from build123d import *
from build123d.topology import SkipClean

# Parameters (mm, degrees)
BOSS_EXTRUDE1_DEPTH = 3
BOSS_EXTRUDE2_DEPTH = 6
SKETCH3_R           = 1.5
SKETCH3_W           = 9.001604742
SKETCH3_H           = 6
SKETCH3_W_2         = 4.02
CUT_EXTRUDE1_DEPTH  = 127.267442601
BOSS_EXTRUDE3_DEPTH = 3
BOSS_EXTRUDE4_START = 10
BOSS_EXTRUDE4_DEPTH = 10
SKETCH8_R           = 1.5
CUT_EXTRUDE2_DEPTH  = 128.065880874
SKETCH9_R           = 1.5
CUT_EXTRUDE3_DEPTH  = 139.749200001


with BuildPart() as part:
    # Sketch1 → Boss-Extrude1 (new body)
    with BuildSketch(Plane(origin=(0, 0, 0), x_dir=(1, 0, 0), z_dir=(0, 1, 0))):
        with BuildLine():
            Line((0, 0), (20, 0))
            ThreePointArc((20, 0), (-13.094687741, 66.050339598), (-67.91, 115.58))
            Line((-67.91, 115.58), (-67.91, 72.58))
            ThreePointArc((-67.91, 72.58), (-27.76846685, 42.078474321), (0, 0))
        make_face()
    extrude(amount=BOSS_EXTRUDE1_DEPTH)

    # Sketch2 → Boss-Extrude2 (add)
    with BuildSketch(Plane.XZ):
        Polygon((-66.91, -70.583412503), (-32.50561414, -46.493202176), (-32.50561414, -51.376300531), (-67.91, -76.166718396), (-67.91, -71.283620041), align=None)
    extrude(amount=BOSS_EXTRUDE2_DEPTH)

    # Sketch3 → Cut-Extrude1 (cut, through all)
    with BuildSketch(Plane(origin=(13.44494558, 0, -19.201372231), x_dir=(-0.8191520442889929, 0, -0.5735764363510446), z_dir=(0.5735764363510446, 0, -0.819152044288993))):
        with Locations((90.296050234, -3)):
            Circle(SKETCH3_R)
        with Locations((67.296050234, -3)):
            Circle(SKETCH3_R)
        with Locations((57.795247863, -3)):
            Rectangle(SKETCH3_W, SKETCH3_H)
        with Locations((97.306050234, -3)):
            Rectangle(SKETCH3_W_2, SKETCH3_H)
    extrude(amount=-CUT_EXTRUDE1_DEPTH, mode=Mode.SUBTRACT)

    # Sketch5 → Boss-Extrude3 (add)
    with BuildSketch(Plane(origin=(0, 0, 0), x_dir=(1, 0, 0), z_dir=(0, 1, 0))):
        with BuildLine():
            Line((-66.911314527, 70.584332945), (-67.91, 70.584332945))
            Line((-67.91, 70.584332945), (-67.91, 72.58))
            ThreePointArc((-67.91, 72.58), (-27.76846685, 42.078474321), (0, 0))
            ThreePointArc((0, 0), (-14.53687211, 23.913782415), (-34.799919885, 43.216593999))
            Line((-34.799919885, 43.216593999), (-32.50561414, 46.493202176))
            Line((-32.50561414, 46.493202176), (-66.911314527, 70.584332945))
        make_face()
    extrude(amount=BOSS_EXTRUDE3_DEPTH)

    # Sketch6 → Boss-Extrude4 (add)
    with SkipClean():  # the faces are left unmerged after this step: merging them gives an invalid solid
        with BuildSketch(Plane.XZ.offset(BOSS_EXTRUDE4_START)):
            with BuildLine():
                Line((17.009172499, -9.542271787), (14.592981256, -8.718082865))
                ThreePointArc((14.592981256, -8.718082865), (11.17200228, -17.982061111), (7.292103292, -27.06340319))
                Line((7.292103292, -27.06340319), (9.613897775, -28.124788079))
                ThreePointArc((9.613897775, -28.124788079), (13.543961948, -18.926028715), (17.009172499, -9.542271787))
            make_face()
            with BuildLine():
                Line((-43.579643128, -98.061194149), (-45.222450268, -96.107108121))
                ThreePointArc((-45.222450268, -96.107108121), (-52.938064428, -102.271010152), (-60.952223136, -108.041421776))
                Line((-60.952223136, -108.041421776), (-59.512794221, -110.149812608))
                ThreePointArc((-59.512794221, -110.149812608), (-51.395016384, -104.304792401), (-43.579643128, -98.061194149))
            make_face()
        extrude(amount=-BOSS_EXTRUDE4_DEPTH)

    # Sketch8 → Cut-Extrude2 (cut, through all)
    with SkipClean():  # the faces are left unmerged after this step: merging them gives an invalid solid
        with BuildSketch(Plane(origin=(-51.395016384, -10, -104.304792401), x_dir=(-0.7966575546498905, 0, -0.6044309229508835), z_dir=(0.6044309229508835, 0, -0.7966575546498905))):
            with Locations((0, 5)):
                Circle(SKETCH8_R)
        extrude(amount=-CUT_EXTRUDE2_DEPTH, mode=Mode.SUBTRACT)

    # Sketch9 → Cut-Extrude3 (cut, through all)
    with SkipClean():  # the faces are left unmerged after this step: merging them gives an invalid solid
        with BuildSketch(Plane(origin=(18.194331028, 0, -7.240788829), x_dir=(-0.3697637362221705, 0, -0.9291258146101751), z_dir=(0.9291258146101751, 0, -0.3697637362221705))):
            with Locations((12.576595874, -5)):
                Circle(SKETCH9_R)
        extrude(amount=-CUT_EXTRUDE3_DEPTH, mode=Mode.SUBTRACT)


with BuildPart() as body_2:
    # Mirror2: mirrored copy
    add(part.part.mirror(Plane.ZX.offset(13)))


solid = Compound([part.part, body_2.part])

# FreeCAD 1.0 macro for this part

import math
import FreeCAD as App
import Part
import Sketcher

V = App.Vector
Q = App.Units.Quantity

doc = App.newDocument("Part")
params = doc.addObject("Spreadsheet::Sheet", "Params")
for row, (alias, value) in enumerate([
    ("sketch1_radius", "200 mm"),
    ("sketch1_radius2", "150 mm"),
    ("sketch1_width", "20 mm"),
    ("sketch1_height", "43 mm"),
    ("pad1_length", "3 mm"),
    ("sketch2_length", "42 mm"),
    ("pad2_length", "6 mm"),
    ("sketch3_diameter", "3 mm"),
    ("sketch3_height", "6 mm"),
    ("sketch3_width", "4.02 mm"),
    ("sketch4_radius", "150 mm"),
    ("sketch4_length", "4 mm"),
    ("pad3_length", "3 mm"),
    ("sketch5_radius", "200 mm"),
    ("pad4_length", "10 mm"),
    ("sketch6_diameter", "3 mm"),
    ("sketch7_diameter", "3 mm"),
], start=1):
    params.set(f"A{row}", alias)
    params.set(f"B{row}", "=" + value)
    params.setAlias(f"B{row}", alias)

body = doc.addObject("PartDesign::Body", "Body")

sketch1 = body.newObject("Sketcher::SketchObject", "Sketch")
sketch1.AttachmentSupport = (doc.getObject("XZ_Plane"), [""])
sketch1.MapMode = "FlatFace"
sketch1.addGeometry([
    Part.LineSegment(V(0, 0, 0), V(20, 0, 0)),
    Part.ArcOfCircle(Part.Circle(V(-172, 55, 0), V(0, 0, 1), 200), math.radians(-59), math.radians(-16)),
    Part.LineSegment(V(-68, -116, 0), V(-68, -73, 0)),
    Part.ArcOfCircle(Part.Circle(V(-137, 60, 0), V(0, 0, 1), 150), math.radians(-62), math.radians(-24)),
], False)
sketch1.addConstraint([
    Sketcher.Constraint("Coincident", 0, 2, 1, 2),
    Sketcher.Constraint("Coincident", 1, 1, 2, 1),
    Sketcher.Constraint("Coincident", 2, 2, 3, 1),
    Sketcher.Constraint("Coincident", 3, 2, 0, 1),
    Sketcher.Constraint("Horizontal", 0),
    Sketcher.Constraint("Vertical", 2),
    Sketcher.Constraint("Coincident", 3, 2, -1, 1),
    Sketcher.Constraint("Radius", 1, 200.0),
    Sketcher.Constraint("Radius", 3, 150.0),
    Sketcher.Constraint("DistanceX", 0, 1, 0, 2, 20.0),
    Sketcher.Constraint("DistanceY", 2, 1, 2, 2, 43.0),
    Sketcher.Constraint("DistanceX", 1, 1, -1, 1, 67.91),
    Sketcher.Constraint("DistanceY", 1, 1, -1, 1, 115.58),
])
sketch1.setExpression("Constraints[7]", "Params.sketch1_radius")
sketch1.setExpression("Constraints[8]", "Params.sketch1_radius2")
sketch1.setExpression("Constraints[9]", "Params.sketch1_width")
sketch1.setExpression("Constraints[10]", "Params.sketch1_height")
pad1 = body.newObject("PartDesign::Pad", "Pad")
pad1.Profile = sketch1
pad1.setExpression("Length", "Params.pad1_length")
pad1.Reversed = True

sketch2 = body.newObject("Sketcher::SketchObject", "Sketch001")
sketch2.AttachmentSupport = (doc.getObject("XZ_Plane"), [""])
sketch2.MapMode = "FlatFace"
sketch2.addGeometry([
    Part.LineSegment(V(-32.5, -46.5, 0), V(-66.9, -70.6, 0)),
    Part.LineSegment(V(-66.9, -70.6, 0), V(-67.9, -71.3, 0)),
    Part.LineSegment(V(-67.9, -71.3, 0), V(-67.9, -76.2, 0)),
    Part.LineSegment(V(-67.9, -76.2, 0), V(-32.5, -51.4, 0)),
    Part.LineSegment(V(-32.5, -51.4, 0), V(-32.5, -46.5, 0)),
], False)
sketch2.addConstraint([
    Sketcher.Constraint("Coincident", 0, 2, 1, 1),
    Sketcher.Constraint("Coincident", 1, 2, 2, 1),
    Sketcher.Constraint("Coincident", 2, 2, 3, 1),
    Sketcher.Constraint("Coincident", 3, 2, 4, 1),
    Sketcher.Constraint("Coincident", 4, 2, 0, 1),
    Sketcher.Constraint("Vertical", 2),
    Sketcher.Constraint("Vertical", 4),
    Sketcher.Constraint("Parallel", 0, 1),
    Sketcher.Constraint("Parallel", 1, 3),
    Sketcher.Constraint("Angle", 0, Q("-145 deg")),
    Sketcher.Constraint("Distance", 0, 42.0),
    Sketcher.Constraint("DistanceX", 1, 2, 0, 2, 1.0),
    Sketcher.Constraint("DistanceX", 0, 2, -1, 1, 66.91),
    Sketcher.Constraint("DistanceY", 2, 2, 2, 1, 4.883098),
    Sketcher.Constraint("DistanceY", 3, 2, -1, 1, 51.376301),
])
sketch2.setExpression("Constraints[10]", "Params.sketch2_length")
pad2 = body.newObject("PartDesign::Pad", "Pad001")
pad2.Profile = sketch2
pad2.setExpression("Length", "Params.pad2_length")

sketch3 = body.newObject("Sketcher::SketchObject", "Sketch002")
sketch3.Placement = App.Placement(V(13.444946, 0, -19.201372), App.Rotation(V(-0.819152044, 0, -0.573576436), V(0, 0.999999999, 0), V(0.573576436, 0, -0.819152044), "ZXY"))
sketch3.addGeometry([
    Part.Circle(V(90.3, -3, 0), V(0, 0, 1), 1.5),
    Part.Circle(V(67.3, -3, 0), V(0, 0, 1), 1.5),
    Part.LineSegment(V(53.3, 0, 0), V(53.3, -6, 0)),
    Part.LineSegment(V(53.3, -6, 0), V(62.3, -6, 0)),
    Part.LineSegment(V(62.3, -6, 0), V(62.3, 0, 0)),
    Part.LineSegment(V(62.3, 0, 0), V(53.3, 0, 0)),
    Part.LineSegment(V(95.3, 0, 0), V(95.3, -6, 0)),
    Part.LineSegment(V(95.3, -6, 0), V(99.3, -6, 0)),
    Part.LineSegment(V(99.3, -6, 0), V(99.3, 0, 0)),
    Part.LineSegment(V(99.3, 0, 0), V(95.3, 0, 0)),
], False)
sketch3.addConstraint([
    Sketcher.Constraint("Coincident", 2, 2, 3, 1),
    Sketcher.Constraint("Coincident", 3, 2, 4, 1),
    Sketcher.Constraint("Coincident", 4, 2, 5, 1),
    Sketcher.Constraint("Coincident", 5, 2, 2, 1),
    Sketcher.Constraint("Coincident", 6, 2, 7, 1),
    Sketcher.Constraint("Coincident", 7, 2, 8, 1),
    Sketcher.Constraint("Coincident", 8, 2, 9, 1),
    Sketcher.Constraint("Coincident", 9, 2, 6, 1),
    Sketcher.Constraint("Vertical", 2),
    Sketcher.Constraint("Horizontal", 3),
    Sketcher.Constraint("Vertical", 4),
    Sketcher.Constraint("Horizontal", 5),
    Sketcher.Constraint("Vertical", 6),
    Sketcher.Constraint("Horizontal", 7),
    Sketcher.Constraint("Vertical", 8),
    Sketcher.Constraint("Horizontal", 9),
    Sketcher.Constraint("Equal", 0, 1),
    Sketcher.Constraint("PointOnObject", 4, 2, -1),
    Sketcher.Constraint("PointOnObject", 8, 2, -1),
    Sketcher.Constraint("Horizontal", 0, 3, 1, 3),
    Sketcher.Constraint("Horizontal", 3, 2, 6, 2),
    Sketcher.Constraint("Diameter", 0, 3.0),
    Sketcher.Constraint("DistanceY", 2, 2, 2, 1, 6.0),
    Sketcher.Constraint("DistanceY", 0, 3, -1, 1, 3.0),
    Sketcher.Constraint("DistanceX", 1, 3, 0, 3, 23.0),
    Sketcher.Constraint("DistanceX", 3, 2, 1, 3, 5.0),
    Sketcher.Constraint("DistanceX", 0, 3, 6, 2, 5.0),
    Sketcher.Constraint("DistanceX", 7, 1, 7, 2, 4.02),
    Sketcher.Constraint("DistanceX", 3, 1, 3, 2, 9.001605),
    Sketcher.Constraint("DistanceX", -1, 1, 0, 3, 90.29605),
])
sketch3.setExpression("Constraints[21]", "Params.sketch3_diameter")
sketch3.setExpression("Constraints[22]", "Params.sketch3_height")
sketch3.setExpression("Constraints[27]", "Params.sketch3_width")
pocket1 = body.newObject("PartDesign::Pocket", "Pocket")
pocket1.Profile = sketch3
pocket1.Type = "ThroughAll"

sketch4 = body.newObject("Sketcher::SketchObject", "Sketch003")
sketch4.AttachmentSupport = (doc.getObject("XZ_Plane"), [""])
sketch4.MapMode = "FlatFace"
sketch4.addGeometry([
    Part.LineSegment(V(-67.9, -70.6, 0), V(-66.9, -70.6, 0)),
    Part.LineSegment(V(-66.9, -70.6, 0), V(-32.5, -46.5, 0)),
    Part.LineSegment(V(-32.5, -46.5, 0), V(-34.8, -43.2, 0)),
    Part.ArcOfCircle(Part.Circle(V(-97.5, 42.9, 0), V(0, 0, 1), 106.5), math.radians(-54), math.radians(-24)),
    Part.ArcOfCircle(Part.Circle(V(-137.3, 60.4, 0), V(0, 0, 1), 150), math.radians(-62), math.radians(-24)),
    Part.LineSegment(V(-67.9, -72.6, 0), V(-67.9, -70.6, 0)),
], False)
sketch4.addConstraint([
    Sketcher.Constraint("Coincident", 0, 2, 1, 1),
    Sketcher.Constraint("Coincident", 1, 2, 2, 1),
    Sketcher.Constraint("Coincident", 2, 2, 3, 1),
    Sketcher.Constraint("Tangent", 3, 2, 4, 2),
    Sketcher.Constraint("Coincident", 4, 1, 5, 1),
    Sketcher.Constraint("Coincident", 5, 2, 0, 1),
    Sketcher.Constraint("Horizontal", 0),
    Sketcher.Constraint("Vertical", 5),
    Sketcher.Constraint("Coincident", 3, 2, -1, 1),
    Sketcher.Constraint("Perpendicular", 1, 2),
    Sketcher.Constraint("Radius", 4, 150.0),
    Sketcher.Constraint("Angle", 1, Q("35 deg")),
    Sketcher.Constraint("Distance", 2, 4.0),
    Sketcher.Constraint("DistanceX", 4, 1, -1, 1, 67.91),
    Sketcher.Constraint("DistanceY", 4, 1, -1, 1, 72.58),
    Sketcher.Constraint("Radius", 3, 106.529165),
    Sketcher.Constraint("DistanceX", 0, 2, 1, 2, 34.4057),
    Sketcher.Constraint("DistanceX", 0, 1, 0, 2, 0.998685),
])
sketch4.setExpression("Constraints[10]", "Params.sketch4_radius")
sketch4.setExpression("Constraints[12]", "Params.sketch4_length")
pad3 = body.newObject("PartDesign::Pad", "Pad002")
pad3.Profile = sketch4
pad3.setExpression("Length", "Params.pad3_length")
pad3.Reversed = True

sketch5 = body.newObject("Sketcher::SketchObject", "Sketch004")
sketch5.AttachmentSupport = (doc.getObject("XZ_Plane"), [""])
sketch5.MapMode = "FlatFace"
sketch5.AttachmentOffset = App.Placement(V(0, 0, 10), App.Rotation())
sketch5.addGeometry([
    Part.LineSegment(V(17, -9.5, 0), V(14.6, -8.7, 0)),
    Part.ArcOfCircle(Part.Circle(V(-172.3, 55, 0), V(0, 0, 1), 197.4), math.radians(-24.57), math.radians(-18.84)),
    Part.LineSegment(V(7.3, -27.1, 0), V(9.6, -28.1, 0)),
    Part.ArcOfCircle(Part.Circle(V(-172.3, 55, 0), V(0, 0, 1), 200), math.radians(-24.57), math.radians(-18.84)),
    Part.LineSegment(V(-43.6, -98.1, 0), V(-45.2, -96.1, 0)),
    Part.ArcOfCircle(Part.Circle(V(-172.3, 55, 0), V(0, 0, 1), 197.4), math.radians(-55.68), math.radians(-49.95)),
    Part.LineSegment(V(-61, -108, 0), V(-59.5, -110.1, 0)),
    Part.ArcOfCircle(Part.Circle(V(-172.3, 55, 0), V(0, 0, 1), 200), math.radians(-55.68), math.radians(-49.95)),
], False)
sketch5.addConstraint([
    Sketcher.Constraint("Coincident", 0, 2, 1, 2),
    Sketcher.Constraint("Coincident", 1, 1, 2, 1),
    Sketcher.Constraint("Coincident", 2, 2, 3, 1),
    Sketcher.Constraint("Coincident", 3, 2, 0, 1),
    Sketcher.Constraint("Coincident", 4, 2, 5, 2),
    Sketcher.Constraint("Coincident", 5, 1, 6, 1),
    Sketcher.Constraint("Coincident", 6, 2, 7, 1),
    Sketcher.Constraint("Coincident", 7, 2, 4, 1),
    Sketcher.Constraint("Coincident", 3, 3, 1, 3),
    Sketcher.Constraint("Coincident", 5, 3, 1, 3),
    Sketcher.Constraint("Coincident", 7, 3, 1, 3),
    Sketcher.Constraint("Equal", 1, 5),
    Sketcher.Constraint("Equal", 3, 7),
    Sketcher.Constraint("Radius", 3, 200.0),
    Sketcher.Constraint("Radius", 1, 197.447106),
    Sketcher.Constraint("DistanceX", 1, 3, -1, 1, 172.281201),
    Sketcher.Constraint("DistanceY", 0, 2, 5, 3, 63.744802),
    Sketcher.Constraint("DistanceX", 5, 3, 2, 2, 181.895099),
    Sketcher.Constraint("DistanceY", -1, 1, 1, 3, 55.026719),
    Sketcher.Constraint("DistanceY", 3, 2, -1, 1, 9.542272),
    Sketcher.Constraint("DistanceX", 4, 2, -1, 1, 45.22245),
    Sketcher.Constraint("DistanceY", 5, 1, -1, 1, 108.041422),
    Sketcher.Constraint("DistanceY", 1, 1, 0, 2, 18.34532),
    Sketcher.Constraint("DistanceX", 5, 1, 6, 2, 1.439429),
    Sketcher.Constraint("DistanceX", 6, 2, 7, 2, 15.933151),
])
sketch5.setExpression("Constraints[13]", "Params.sketch5_radius")
pad4 = body.newObject("PartDesign::Pad", "Pad003")
pad4.Profile = sketch5
pad4.setExpression("Length", "Params.pad4_length")
pad4.Reversed = True

sketch6 = body.newObject("Sketcher::SketchObject", "Sketch005")
sketch6.Placement = App.Placement(V(-51.395016, -10, -104.304792), App.Rotation(V(-0.796657555, 0, -0.604430923), V(0, 1.000000001, 0), V(0.604430923, 0, -0.796657555), "ZXY"))
sketch6.addGeometry(Part.Circle(V(0, 5, 0), V(0, 0, 1), 1.5), False)
sketch6.addConstraint([
    Sketcher.Constraint("PointOnObject", 0, 3, -2),
    Sketcher.Constraint("Diameter", 0, 3.0),
    Sketcher.Constraint("DistanceY", -1, 1, 0, 3, 5.0),
])
sketch6.setExpression("Constraints[1]", "Params.sketch6_diameter")
pocket2 = body.newObject("PartDesign::Pocket", "Pocket001")
pocket2.Profile = sketch6
pocket2.Type = "ThroughAll"

sketch7 = body.newObject("Sketcher::SketchObject", "Sketch006")
sketch7.Placement = App.Placement(V(18.194331, 0, -7.240789), App.Rotation(V(-0.369763736, 0, -0.929125815), V(0, 1.000000001, 0), V(0.929125815, 0, -0.369763736), "ZXY"))
sketch7.addGeometry(Part.Circle(V(12.6, -5, 0), V(0, 0, 1), 1.5), False)
sketch7.addConstraint([
    Sketcher.Constraint("Diameter", 0, 3.0),
    Sketcher.Constraint("DistanceY", 0, 3, -1, 1, 5.0),
    Sketcher.Constraint("DistanceX", -1, 1, 0, 3, 12.576596),
])
sketch7.setExpression("Constraints[0]", "Params.sketch7_diameter")
pocket3 = body.newObject("PartDesign::Pocket", "Pocket002")
pocket3.Profile = sketch7
pocket3.Type = "ThroughAll"
body2 = doc.addObject("PartDesign::Body", "Body001")
doc.recompute()

mirroring = doc.addObject("Part::Mirroring", "Mirroring")
mirroring.Source = body
mirroring.Base = V(0, 13, 0)
mirroring.Normal = V(0, 1, 0)
body2.BaseFeature = mirroring
doc.recompute()
mirroring.Visibility = False

doc.recompute()
